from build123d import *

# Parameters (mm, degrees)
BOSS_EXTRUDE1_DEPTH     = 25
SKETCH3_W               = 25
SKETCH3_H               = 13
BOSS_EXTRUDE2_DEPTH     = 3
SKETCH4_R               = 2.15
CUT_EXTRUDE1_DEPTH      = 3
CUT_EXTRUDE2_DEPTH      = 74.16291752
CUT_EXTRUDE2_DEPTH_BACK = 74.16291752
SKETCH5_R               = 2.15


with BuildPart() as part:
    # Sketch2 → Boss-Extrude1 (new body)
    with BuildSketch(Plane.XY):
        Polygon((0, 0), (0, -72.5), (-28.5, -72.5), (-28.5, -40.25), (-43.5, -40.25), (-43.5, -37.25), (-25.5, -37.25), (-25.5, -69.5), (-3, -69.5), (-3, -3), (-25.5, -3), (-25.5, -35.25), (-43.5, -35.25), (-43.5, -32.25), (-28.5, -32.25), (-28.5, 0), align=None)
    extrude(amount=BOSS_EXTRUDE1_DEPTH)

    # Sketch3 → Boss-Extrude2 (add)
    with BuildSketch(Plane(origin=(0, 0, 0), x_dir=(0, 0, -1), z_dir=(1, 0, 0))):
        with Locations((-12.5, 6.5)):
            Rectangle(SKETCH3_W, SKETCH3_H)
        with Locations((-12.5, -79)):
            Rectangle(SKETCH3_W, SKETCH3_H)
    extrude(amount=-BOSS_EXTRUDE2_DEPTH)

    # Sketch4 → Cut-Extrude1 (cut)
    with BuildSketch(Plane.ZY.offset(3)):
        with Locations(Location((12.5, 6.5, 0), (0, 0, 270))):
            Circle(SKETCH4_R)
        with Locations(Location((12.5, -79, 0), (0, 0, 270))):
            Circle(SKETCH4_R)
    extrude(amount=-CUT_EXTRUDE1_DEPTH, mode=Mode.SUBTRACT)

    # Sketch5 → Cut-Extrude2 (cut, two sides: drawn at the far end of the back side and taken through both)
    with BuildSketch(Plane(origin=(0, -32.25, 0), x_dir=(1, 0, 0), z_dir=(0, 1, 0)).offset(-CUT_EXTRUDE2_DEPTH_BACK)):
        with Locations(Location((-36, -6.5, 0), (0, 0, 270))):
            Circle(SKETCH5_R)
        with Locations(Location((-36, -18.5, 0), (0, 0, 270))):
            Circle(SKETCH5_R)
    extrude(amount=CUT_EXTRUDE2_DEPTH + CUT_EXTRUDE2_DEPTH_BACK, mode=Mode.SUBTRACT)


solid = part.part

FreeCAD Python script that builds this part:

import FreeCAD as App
import Part
import Sketcher

V = App.Vector

doc = App.newDocument("Part")
body = doc.addObject("PartDesign::Body", "Body")

# Sketch on XY plane
sketch1 = doc.addObject("Sketcher::SketchObject", "Sketch")
body.addObject(sketch1)
sketch1.AttachmentSupport = (doc.XY_Plane, [""])
sketch1.MapMode = "FlatFace"
sketch1.addGeometry([
    Part.LineSegment(V(0, -72.5, 0), V(0, 0, 0)),  # 0
    Part.LineSegment(V(0, 0, 0), V(-28.5, 0, 0)),  # 1
    Part.LineSegment(V(-28.5, 0, 0), V(-28.5, -32.2, 0)),  # 2
    Part.LineSegment(V(-28.5, -32.2, 0), V(-43.5, -32.2, 0)),  # 3
    Part.LineSegment(V(-43.5, -32.2, 0), V(-43.5, -35.2, 0)),  # 4
    Part.LineSegment(V(-43.5, -35.2, 0), V(-25.5, -35.2, 0)),  # 5
    Part.LineSegment(V(-25.5, -35.2, 0), V(-25.5, -3, 0)),  # 6
    Part.LineSegment(V(-25.5, -3, 0), V(-3, -3, 0)),  # 7
    Part.LineSegment(V(-3, -3, 0), V(-3, -69.5, 0)),  # 8
    Part.LineSegment(V(-3, -69.5, 0), V(-25.5, -69.5, 0)),  # 9
    Part.LineSegment(V(-25.5, -69.5, 0), V(-25.5, -37.2, 0)),  # 10
    Part.LineSegment(V(-25.5, -37.2, 0), V(-43.5, -37.2, 0)),  # 11
    Part.LineSegment(V(-43.5, -37.2, 0), V(-43.5, -40.2, 0)),  # 12
    Part.LineSegment(V(-43.5, -40.2, 0), V(-28.5, -40.2, 0)),  # 13
    Part.LineSegment(V(-28.5, -40.2, 0), V(-28.5, -72.5, 0)),  # 14
    Part.LineSegment(V(-28.5, -72.5, 0), V(0, -72.5, 0)),  # 15
], False)
sketch1.addConstraint([
    Sketcher.Constraint("Coincident", 0, 2, 1, 1),
    Sketcher.Constraint("Coincident", 1, 2, 2, 1),
    Sketcher.Constraint("Coincident", 2, 2, 3, 1),
    Sketcher.Constraint("Coincident", 3, 2, 4, 1),
    Sketcher.Constraint("Coincident", 4, 2, 5, 1),
    Sketcher.Constraint("Coincident", 5, 2, 6, 1),
    Sketcher.Constraint("Coincident", 6, 2, 7, 1),
    Sketcher.Constraint("Coincident", 7, 2, 8, 1),
    Sketcher.Constraint("Coincident", 8, 2, 9, 1),
    Sketcher.Constraint("Coincident", 9, 2, 10, 1),
    Sketcher.Constraint("Coincident", 10, 2, 11, 1),
    Sketcher.Constraint("Coincident", 11, 2, 12, 1),
    Sketcher.Constraint("Coincident", 12, 2, 13, 1),
    Sketcher.Constraint("Coincident", 13, 2, 14, 1),
    Sketcher.Constraint("Coincident", 14, 2, 15, 1),
    Sketcher.Constraint("Coincident", 15, 2, 0, 1),
    Sketcher.Constraint("Vertical", 0),
    Sketcher.Constraint("Horizontal", 1),
    Sketcher.Constraint("Vertical", 2),
    Sketcher.Constraint("Horizontal", 3),
    Sketcher.Constraint("Vertical", 4),
    Sketcher.Constraint("Horizontal", 5),
    Sketcher.Constraint("Vertical", 6),
    Sketcher.Constraint("Horizontal", 7),
    Sketcher.Constraint("Vertical", 8),
    Sketcher.Constraint("Horizontal", 9),
    Sketcher.Constraint("Vertical", 10),
    Sketcher.Constraint("Horizontal", 11),
    Sketcher.Constraint("Vertical", 12),
    Sketcher.Constraint("Horizontal", 13),
    Sketcher.Constraint("Vertical", 14),
    Sketcher.Constraint("Horizontal", 15),
    Sketcher.Constraint("Coincident", 0, 2, -1, 1),
    Sketcher.Constraint("Vertical", 6, 2, 9, 2),
    Sketcher.Constraint("Vertical", 4, 2, 11, 2),
    Sketcher.Constraint("Vertical", 2, 2, 13, 2),
    Sketcher.Constraint("Equal", 2, 6),
    Sketcher.Constraint("Equal", 6, 10),
    Sketcher.Constraint("Equal", 4, 12),
    Sketcher.Constraint("Equal", 10, 14),
    Sketcher.Constraint("DistanceX", 3, 2, 3, 1, 15.0),
    Sketcher.Constraint("DistanceX", 5, 1, 5, 2, 18.0),
    Sketcher.Constraint("DistanceY", 4, 2, 4, 1, 3.0),
    Sketcher.Constraint("DistanceX", 1, 2, 1, 1, 28.5),
    Sketcher.Constraint("DistanceX", 7, 1, 7, 2, 22.5),
    Sketcher.Constraint("DistanceY", 0, 1, 0, 2, 72.5),
    Sketcher.Constraint("DistanceY", 10, 2, 5, 2, 2.0),
])
pad1 = doc.addObject("PartDesign::Pad", "Pad")
body.addObject(pad1)
pad1.Profile = sketch1
pad1.Length = 25

# Sketch on YZ plane
sketch2 = doc.addObject("Sketcher::SketchObject", "Sketch001")
body.addObject(sketch2)
sketch2.AttachmentSupport = (doc.YZ_Plane, [""])
sketch2.MapMode = "FlatFace"
sketch2.addGeometry([
    Part.LineSegment(V(13, 25, 0), V(0, 25, 0)),  # 0
    Part.LineSegment(V(0, 25, 0), V(0, 0, 0)),  # 1
    Part.LineSegment(V(0, 0, 0), V(13, 0, 0)),  # 2
    Part.LineSegment(V(13, 0, 0), V(13, 25, 0)),  # 3
    Part.LineSegment(V(-72, 25, 0), V(-86, 25, 0)),  # 4
    Part.LineSegment(V(-86, 25, 0), V(-86, 0, 0)),  # 5
    Part.LineSegment(V(-86, 0, 0), V(-72, 0, 0)),  # 6
    Part.LineSegment(V(-72, 0, 0), V(-72, 25, 0)),  # 7
], False)
sketch2.addConstraint([
    Sketcher.Constraint("Coincident", 0, 2, 1, 1),
    Sketcher.Constraint("Coincident", 1, 2, 2, 1),
    Sketcher.Constraint("Coincident", 2, 2, 3, 1),
    Sketcher.Constraint("Coincident", 3, 2, 0, 1),
    Sketcher.Constraint("Coincident", 4, 2, 5, 1),
    Sketcher.Constraint("Coincident", 5, 2, 6, 1),
    Sketcher.Constraint("Coincident", 6, 2, 7, 1),
    Sketcher.Constraint("Coincident", 7, 2, 4, 1),
    Sketcher.Constraint("Horizontal", 0),
    Sketcher.Constraint("Vertical", 1),
    Sketcher.Constraint("Horizontal", 2),
    Sketcher.Constraint("Vertical", 3),
    Sketcher.Constraint("Horizontal", 4),
    Sketcher.Constraint("Vertical", 5),
    Sketcher.Constraint("Horizontal", 6),
    Sketcher.Constraint("Vertical", 7),
    Sketcher.Constraint("Coincident", 1, 2, -1, 1),
    Sketcher.Constraint("PointOnObject", 5, 2, -1),
    Sketcher.Constraint("Horizontal", 3, 2, 4, 2),
    Sketcher.Constraint("Equal", 2, 4),
    Sketcher.Constraint("DistanceX", 0, 2, 0, 1, 13.0),
    Sketcher.Constraint("DistanceY", 1, 2, 1, 1, 25.0),
    Sketcher.Constraint("DistanceX", 4, 2, -1, 1, 85.5),
])
pad2 = doc.addObject("PartDesign::Pad", "Pad001")
body.addObject(pad2)
pad2.Profile = sketch2
pad2.Length = 3
pad2.Reversed = True

# Sketch on YZ plane
sketch3 = doc.addObject("Sketcher::SketchObject", "Sketch002")
body.addObject(sketch3)
sketch3.AttachmentSupport = (doc.YZ_Plane, [""])
sketch3.MapMode = "FlatFace"
sketch3.AttachmentOffset = App.Placement(V(0, 0, -3), App.Rotation())
sketch3.addGeometry([
    Part.Circle(V(6.5, 12.5, 0), V(0, 0, 1), 2.1),
    Part.Circle(V(-79, 12.5, 0), V(0, 0, 1), 2.1),
], False)
sketch3.addConstraint([
    Sketcher.Constraint("Equal", 0, 1),
    Sketcher.Constraint("Horizontal", 0, 3, 1, 3),
    Sketcher.Constraint("Diameter", 0, 4.3),
    Sketcher.Constraint("DistanceX", 1, 3, -1, 1, 79.0),
    Sketcher.Constraint("DistanceX", -1, 1, 0, 3, 6.5),
    Sketcher.Constraint("DistanceY", -1, 1, 0, 3, 12.5),
])
pocket1 = doc.addObject("PartDesign::Pocket", "Pocket")
body.addObject(pocket1)
pocket1.Profile = sketch3
pocket1.Length = 3
pocket1.Reversed = True

# Sketch on XZ plane
sketch4 = doc.addObject("Sketcher::SketchObject", "Sketch003")
body.addObject(sketch4)
sketch4.AttachmentSupport = (doc.XZ_Plane, [""])
sketch4.MapMode = "FlatFace"
sketch4.AttachmentOffset = App.Placement(V(0, 0, 32.25), App.Rotation())
sketch4.addGeometry([
    Part.Circle(V(-36, 6.5, 0), V(0, 0, 1), 2.1),
    Part.Circle(V(-36, 18.5, 0), V(0, 0, 1), 2.1),
], False)
sketch4.addConstraint([
    Sketcher.Constraint("Equal", 0, 1),
    Sketcher.Constraint("Vertical", 0, 3, 1, 3),
    Sketcher.Constraint("Diameter", 0, 4.3),
    Sketcher.Constraint("DistanceX", 0, 3, -1, 1, 36.0),
    Sketcher.Constraint("DistanceY", 0, 3, 1, 3, 12.0),
    Sketcher.Constraint("DistanceY", -1, 1, 0, 3, 6.5),
])
pocket2 = doc.addObject("PartDesign::Pocket", "Pocket001")
body.addObject(pocket2)
pocket2.Profile = sketch4
pocket2.Type = "ThroughAll"
pocket2.Midplane = True

doc.recompute()
